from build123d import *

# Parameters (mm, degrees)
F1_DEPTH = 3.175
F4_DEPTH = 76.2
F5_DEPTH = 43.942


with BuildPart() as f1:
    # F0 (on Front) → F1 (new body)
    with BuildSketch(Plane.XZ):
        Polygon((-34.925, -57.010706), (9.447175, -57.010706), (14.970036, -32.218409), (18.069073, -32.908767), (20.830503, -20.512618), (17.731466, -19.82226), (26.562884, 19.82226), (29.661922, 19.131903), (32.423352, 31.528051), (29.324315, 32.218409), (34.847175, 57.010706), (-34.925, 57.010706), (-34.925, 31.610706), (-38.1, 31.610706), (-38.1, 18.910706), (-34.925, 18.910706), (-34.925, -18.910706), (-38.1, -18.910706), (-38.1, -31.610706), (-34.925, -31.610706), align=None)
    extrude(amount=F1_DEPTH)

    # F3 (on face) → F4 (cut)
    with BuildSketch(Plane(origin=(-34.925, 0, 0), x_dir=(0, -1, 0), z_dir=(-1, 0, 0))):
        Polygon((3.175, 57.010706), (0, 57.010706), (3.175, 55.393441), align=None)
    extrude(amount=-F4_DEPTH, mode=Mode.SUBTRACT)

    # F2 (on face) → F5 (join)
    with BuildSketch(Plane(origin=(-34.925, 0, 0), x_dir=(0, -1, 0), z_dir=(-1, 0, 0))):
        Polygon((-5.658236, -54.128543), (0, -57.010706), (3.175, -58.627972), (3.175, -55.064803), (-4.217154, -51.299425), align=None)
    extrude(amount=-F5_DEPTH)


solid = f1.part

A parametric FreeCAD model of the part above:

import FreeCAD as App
import Part
import Sketcher
from FreeCAD import Vector
Q = App.Units.Quantity


def add_polygon(sketch, points):
    """Adds a closed chain of lines whose ends are joined by coincident constraints."""
    first, n = sketch.GeometryCount, len(points)
    for a, b in zip(points, points[1:] + points[:1]):
        sketch.addGeometry(Part.LineSegment(App.Vector(*a, 0), App.Vector(*b, 0)), False)
    for i in range(n):
        sketch.addConstraint(Sketcher.Constraint("Coincident", first + i, 2, first + (i + 1) % n, 1))

doc = App.newDocument("Part")
params = doc.addObject("Spreadsheet::Sheet", "Params")
for row, (alias, value) in enumerate([
    ("sketch1_height", "1 in"),
    ("sketch1_length", "1 in"),
    ("sketch1_height2", "0.5 in"),
    ("sketch1_length2", "0.5 in"),
    ("sketch1_width", "0.125 in"),
    ("pad1_length", "0.125 in"),
    ("sketch2_width", "0.125 in"),
    ("pocket1_length", "3 in"),
    ("sketch3_length", "0.25 in"),
    ("sketch3_length2", "0.125 in"),
    ("pad2_length", "1.73 in"),
], start=1):
    params.set(f"A{row}", alias)
    params.set(f"B{row}", "=" + value)
    params.setAlias(f"B{row}", alias)

body = doc.addObject("PartDesign::Body", "Body")

# Sketch on XZ plane
sketch1 = body.newObject("Sketcher::SketchObject", "Sketch")
sketch1.AttachmentSupport = (doc.getObject("XZ_Plane"), [""])
sketch1.MapMode = "FlatFace"
add_polygon(sketch1, [(-34.925, -57.010706), (9.447175, -57.010706), (14.970036, -32.218409), (18.069073, -32.908767), (20.830503, -20.512618), (17.731466, -19.82226), (26.562884, 19.82226), (29.661922, 19.131903), (32.423352, 31.528051), (29.324315, 32.218409), (34.847175, 57.010706), (-34.925, 57.010706), (-34.925, 31.610706), (-38.1, 31.610706), (-38.1, 18.910706), (-34.925, 18.910706), (-34.925, -18.910706), (-38.1, -18.910706), (-38.1, -31.610706), (-34.925, -31.610706)])  # lines 0-19
sketch1.addConstraint(Sketcher.Constraint("Horizontal", 0))
sketch1.addConstraint(Sketcher.Constraint("Horizontal", 10))
sketch1.addConstraint(Sketcher.Constraint("Vertical", 11))
sketch1.addConstraint(Sketcher.Constraint("Horizontal", 12))
sketch1.addConstraint(Sketcher.Constraint("Vertical", 13))
sketch1.addConstraint(Sketcher.Constraint("Horizontal", 14))
sketch1.addConstraint(Sketcher.Constraint("Vertical", 15))
sketch1.addConstraint(Sketcher.Constraint("Horizontal", 16))
sketch1.addConstraint(Sketcher.Constraint("Vertical", 17))
sketch1.addConstraint(Sketcher.Constraint("Horizontal", 18))
sketch1.addConstraint(Sketcher.Constraint("Vertical", 19))
sketch1.addConstraint(Sketcher.Constraint("Symmetric", 13, 2, 16, 2, -1))
sketch1.addConstraint(Sketcher.Constraint("Symmetric", 11, 2, 18, 2, -1))
sketch1.addConstraint(Sketcher.Constraint("Perpendicular", 1, 2))
sketch1.addConstraint(Sketcher.Constraint("Perpendicular", 2, 3))
sketch1.addConstraint(Sketcher.Constraint("Perpendicular", 3, 4))
sketch1.addConstraint(Sketcher.Constraint("Perpendicular", 4, 5))
sketch1.addConstraint(Sketcher.Constraint("Perpendicular", 5, 6))
sketch1.addConstraint(Sketcher.Constraint("Perpendicular", 6, 7))
sketch1.addConstraint(Sketcher.Constraint("Perpendicular", 7, 8))
sketch1.addConstraint(Sketcher.Constraint("Perpendicular", 8, 9))
sketch1.addConstraint(Sketcher.Constraint("Vertical", 11, 2, 14, 2))
sketch1.addConstraint(Sketcher.Constraint("Equal", 11, 19))
sketch1.addConstraint(Sketcher.Constraint("Equal", 2, 4))
sketch1.addConstraint(Sketcher.Constraint("Equal", 4, 6))
sketch1.addConstraint(Sketcher.Constraint("Equal", 3, 7))
sketch1.addConstraint(Sketcher.Constraint("Equal", 6, 8))
sketch1.addConstraint(Sketcher.Constraint("Equal", 1, 9))
sketch1.addConstraint(Sketcher.Constraint("DistanceY", 11, 2, 11, 1, Q("1 in")))
sketch1.addConstraint(Sketcher.Constraint("Distance", 1, Q("1 in")))
sketch1.addConstraint(Sketcher.Constraint("DistanceY", 13, 2, 13, 1, Q("0.5 in")))
sketch1.addConstraint(Sketcher.Constraint("Distance", 3, Q("0.5 in")))
sketch1.addConstraint(Sketcher.Constraint("DistanceX", 12, 2, -1, 1, Q("1.5 in")))
sketch1.addConstraint(Sketcher.Constraint("DistanceX", 12, 2, 12, 1, Q("0.125 in")))
sketch1.addConstraint(Sketcher.Constraint("Distance", 2, Q("0.125 in")))
sketch1.addConstraint(Sketcher.Constraint("DistanceX", 0, 1, 0, 2, 44.372175))
sketch1.addConstraint(Sketcher.Constraint("DistanceX", 10, 2, 10, 1, 69.772175))
sketch1.addConstraint(Sketcher.Constraint("DistanceY", 15, 2, 15, 1, 37.821412))
sketch1.setExpression("Constraints[48]", "Params.sketch1_height")
sketch1.setExpression("Constraints[49]", "Params.sketch1_length")
sketch1.setExpression("Constraints[50]", "Params.sketch1_height2")
sketch1.setExpression("Constraints[51]", "Params.sketch1_length2")
sketch1.setExpression("Constraints[53]", "Params.sketch1_width")
pad1 = body.newObject("PartDesign::Pad", "Pad")
pad1.Profile = sketch1
pad1.setExpression("Length", "Params.pad1_length")

# Sketch on YZ plane
sketch2 = body.newObject("Sketcher::SketchObject", "Sketch001")
sketch2.AttachmentSupport = (doc.getObject("YZ_Plane"), [""])
sketch2.MapMode = "FlatFace"
sketch2.AttachmentOffset = App.Placement(Vector(0, 0, -1.375 * 25.4), App.Rotation())
add_polygon(sketch2, [(-3.175, 57.010706), (0, 57.010706), (-3.175, 55.393441)])  # lines 0-2
sketch2.addConstraint(Sketcher.Constraint("Horizontal", 0))
sketch2.addConstraint(Sketcher.Constraint("Vertical", 2))
sketch2.addConstraint(Sketcher.Constraint("PointOnObject", 0, 2, -2))
sketch2.addConstraint(Sketcher.Constraint("DistanceX", 0, 1, 0, 2, Q("0.125 in")))
sketch2.addConstraint(Sketcher.Constraint("Distance", 1, 3.563169))
sketch2.addConstraint(Sketcher.Constraint("DistanceY", -1, 1, 1, 2, 55.393441))
sketch2.setExpression("Constraints[6]", "Params.sketch2_width")
pocket1 = body.newObject("PartDesign::Pocket", "Pocket")
pocket1.Profile = sketch2
pocket1.setExpression("Length", "Params.pocket1_length")
pocket1.Reversed = True

# Sketch on YZ plane
sketch3 = body.newObject("Sketcher::SketchObject", "Sketch002")
sketch3.AttachmentSupport = (doc.getObject("YZ_Plane"), [""])
sketch3.MapMode = "FlatFace"
sketch3.AttachmentOffset = App.Placement(Vector(0, 0, -1.375 * 25.4), App.Rotation())
add_polygon(sketch3, [(5.658236, -54.128543), (0, -57.010706), (-3.175, -58.627972), (-3.175, -55.064803), (4.217154, -51.299425)])  # lines 0-4
sketch3.addConstraint(Sketcher.Constraint("Vertical", 2))
sketch3.addConstraint(Sketcher.Constraint("PointOnObject", 0, 2, -2))
sketch3.addConstraint(Sketcher.Constraint("Parallel", 0, 1))
sketch3.addConstraint(Sketcher.Constraint("Parallel", 1, 3))
sketch3.addConstraint(Sketcher.Constraint("Perpendicular", 3, 4))
sketch3.addConstraint(Sketcher.Constraint("Distance", 0, Q("0.25 in")))
sketch3.addConstraint(Sketcher.Constraint("Distance", 4, Q("0.125 in")))
sketch3.addConstraint(Sketcher.Constraint("DistanceX", 1, 2, -1, 1, Q("0.125 in")))
sketch3.addConstraint(Sketcher.Constraint("DistanceY", 2, 1, 2, 2, 3.563169))
sketch3.addConstraint(Sketcher.Constraint("DistanceY", 0, 2, -1, 1, 57.010706))
sketch3.setExpression("Constraints[10]", "Params.sketch3_length")
sketch3.setExpression("Constraints[11]", "Params.sketch3_length2")
pad2 = body.newObject("PartDesign::Pad", "Pad001")
pad2.Profile = sketch3
pad2.setExpression("Length", "Params.pad2_length")

doc.recompute()
